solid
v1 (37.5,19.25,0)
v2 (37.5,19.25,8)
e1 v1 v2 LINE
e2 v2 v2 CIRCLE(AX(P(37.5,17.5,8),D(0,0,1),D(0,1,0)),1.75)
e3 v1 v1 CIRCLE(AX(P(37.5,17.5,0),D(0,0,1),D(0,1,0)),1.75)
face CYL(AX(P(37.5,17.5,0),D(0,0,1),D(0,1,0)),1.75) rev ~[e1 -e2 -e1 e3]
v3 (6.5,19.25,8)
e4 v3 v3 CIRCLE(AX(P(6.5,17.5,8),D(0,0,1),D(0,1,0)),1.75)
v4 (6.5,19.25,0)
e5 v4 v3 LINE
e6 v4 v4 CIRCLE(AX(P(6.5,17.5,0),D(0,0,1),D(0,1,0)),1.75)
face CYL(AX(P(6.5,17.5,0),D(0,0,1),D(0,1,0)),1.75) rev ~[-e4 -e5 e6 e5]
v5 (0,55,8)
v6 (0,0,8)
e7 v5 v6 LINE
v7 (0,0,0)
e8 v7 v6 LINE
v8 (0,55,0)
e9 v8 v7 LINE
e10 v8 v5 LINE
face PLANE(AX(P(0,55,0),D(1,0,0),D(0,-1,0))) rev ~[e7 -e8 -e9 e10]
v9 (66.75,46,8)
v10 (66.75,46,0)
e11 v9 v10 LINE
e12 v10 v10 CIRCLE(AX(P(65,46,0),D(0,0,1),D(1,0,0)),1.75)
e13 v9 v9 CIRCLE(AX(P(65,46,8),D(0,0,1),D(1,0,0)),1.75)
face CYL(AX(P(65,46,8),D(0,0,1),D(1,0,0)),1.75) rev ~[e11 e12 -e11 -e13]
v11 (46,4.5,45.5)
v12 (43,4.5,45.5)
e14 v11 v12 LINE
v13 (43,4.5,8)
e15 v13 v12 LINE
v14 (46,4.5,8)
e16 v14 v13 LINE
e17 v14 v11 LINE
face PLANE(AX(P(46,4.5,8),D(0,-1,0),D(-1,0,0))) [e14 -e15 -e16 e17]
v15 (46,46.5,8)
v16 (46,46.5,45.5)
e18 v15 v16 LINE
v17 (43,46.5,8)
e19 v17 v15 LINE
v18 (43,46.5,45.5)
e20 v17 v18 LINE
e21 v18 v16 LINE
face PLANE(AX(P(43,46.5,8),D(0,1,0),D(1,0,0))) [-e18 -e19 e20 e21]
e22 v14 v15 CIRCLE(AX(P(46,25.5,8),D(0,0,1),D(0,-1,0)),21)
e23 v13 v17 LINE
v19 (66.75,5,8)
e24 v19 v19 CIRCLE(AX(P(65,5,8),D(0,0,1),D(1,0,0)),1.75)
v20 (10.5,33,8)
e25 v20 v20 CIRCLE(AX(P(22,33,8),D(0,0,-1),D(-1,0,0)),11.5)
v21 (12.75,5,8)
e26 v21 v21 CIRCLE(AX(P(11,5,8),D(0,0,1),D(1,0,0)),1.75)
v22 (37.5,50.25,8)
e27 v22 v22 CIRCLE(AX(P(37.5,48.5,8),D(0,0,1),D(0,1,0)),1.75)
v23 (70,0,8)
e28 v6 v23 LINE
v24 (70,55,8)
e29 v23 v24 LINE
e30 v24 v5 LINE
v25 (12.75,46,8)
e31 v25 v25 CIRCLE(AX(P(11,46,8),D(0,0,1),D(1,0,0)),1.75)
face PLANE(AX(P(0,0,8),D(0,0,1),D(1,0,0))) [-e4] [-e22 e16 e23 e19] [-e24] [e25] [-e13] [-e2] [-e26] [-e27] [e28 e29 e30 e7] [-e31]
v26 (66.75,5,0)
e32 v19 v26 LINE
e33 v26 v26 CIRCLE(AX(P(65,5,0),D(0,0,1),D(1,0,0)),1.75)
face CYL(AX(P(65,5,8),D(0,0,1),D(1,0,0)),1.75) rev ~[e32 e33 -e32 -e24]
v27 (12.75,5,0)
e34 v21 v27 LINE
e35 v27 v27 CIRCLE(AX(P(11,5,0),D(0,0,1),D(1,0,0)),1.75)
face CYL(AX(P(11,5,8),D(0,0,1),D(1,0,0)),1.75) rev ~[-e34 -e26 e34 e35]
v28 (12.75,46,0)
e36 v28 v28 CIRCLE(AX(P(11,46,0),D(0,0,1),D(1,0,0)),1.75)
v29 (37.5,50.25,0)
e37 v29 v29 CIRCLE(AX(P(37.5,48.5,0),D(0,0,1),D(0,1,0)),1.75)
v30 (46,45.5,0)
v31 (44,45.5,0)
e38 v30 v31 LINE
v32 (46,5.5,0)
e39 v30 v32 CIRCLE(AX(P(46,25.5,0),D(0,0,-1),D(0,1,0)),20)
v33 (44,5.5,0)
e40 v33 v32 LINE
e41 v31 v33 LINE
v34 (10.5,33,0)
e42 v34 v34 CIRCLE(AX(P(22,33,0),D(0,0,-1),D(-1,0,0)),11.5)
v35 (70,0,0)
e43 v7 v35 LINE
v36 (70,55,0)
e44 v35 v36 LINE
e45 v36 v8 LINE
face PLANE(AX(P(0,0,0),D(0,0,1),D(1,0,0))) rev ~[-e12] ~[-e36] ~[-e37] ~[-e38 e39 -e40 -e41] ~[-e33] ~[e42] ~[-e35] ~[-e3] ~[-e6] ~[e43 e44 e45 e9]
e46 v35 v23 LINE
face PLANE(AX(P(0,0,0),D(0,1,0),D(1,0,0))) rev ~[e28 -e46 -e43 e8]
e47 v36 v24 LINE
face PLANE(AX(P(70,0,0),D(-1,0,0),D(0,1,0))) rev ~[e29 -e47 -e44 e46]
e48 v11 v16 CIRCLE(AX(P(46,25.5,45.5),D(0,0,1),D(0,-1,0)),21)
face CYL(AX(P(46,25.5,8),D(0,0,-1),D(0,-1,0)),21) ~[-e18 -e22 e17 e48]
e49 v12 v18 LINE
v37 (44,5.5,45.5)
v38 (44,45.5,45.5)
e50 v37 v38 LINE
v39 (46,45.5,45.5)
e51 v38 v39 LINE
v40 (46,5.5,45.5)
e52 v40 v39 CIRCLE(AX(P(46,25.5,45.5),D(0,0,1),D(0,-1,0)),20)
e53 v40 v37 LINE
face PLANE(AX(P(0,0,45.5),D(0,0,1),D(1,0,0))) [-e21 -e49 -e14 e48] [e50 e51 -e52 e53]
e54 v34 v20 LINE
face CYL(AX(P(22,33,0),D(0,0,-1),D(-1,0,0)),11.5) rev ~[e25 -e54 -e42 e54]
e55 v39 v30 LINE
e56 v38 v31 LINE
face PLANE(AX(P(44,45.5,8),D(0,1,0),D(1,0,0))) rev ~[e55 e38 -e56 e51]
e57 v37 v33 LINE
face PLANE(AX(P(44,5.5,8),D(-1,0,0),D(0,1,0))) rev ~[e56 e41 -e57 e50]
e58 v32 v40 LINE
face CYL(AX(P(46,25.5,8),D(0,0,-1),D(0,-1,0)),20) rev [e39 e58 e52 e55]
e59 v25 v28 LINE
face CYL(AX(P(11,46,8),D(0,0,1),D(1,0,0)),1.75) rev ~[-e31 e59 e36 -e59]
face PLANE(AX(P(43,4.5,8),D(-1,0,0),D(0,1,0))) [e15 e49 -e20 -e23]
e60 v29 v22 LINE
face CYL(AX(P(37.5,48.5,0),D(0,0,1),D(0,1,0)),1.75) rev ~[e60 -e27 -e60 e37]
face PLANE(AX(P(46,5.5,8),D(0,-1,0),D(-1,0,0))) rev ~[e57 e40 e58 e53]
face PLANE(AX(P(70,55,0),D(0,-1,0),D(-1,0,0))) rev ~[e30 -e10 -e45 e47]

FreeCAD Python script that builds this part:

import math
import FreeCAD as App
import Part
import Sketcher

V = App.Vector
Q = App.Units.Quantity

doc = App.newDocument("Part")
body = doc.addObject("PartDesign::Body", "Body")

# Sketch on XY plane
sketch1 = doc.addObject("Sketcher::SketchObject", "Sketch")
body.addObject(sketch1)
sketch1.AttachmentSupport = (doc.XY_Plane, [""])
sketch1.MapMode = "FlatFace"
sketch1.addGeometry(Part.LineSegment(V(0, 55, 0), V(0, 0, 0)), False)
sketch1.addGeometry(Part.LineSegment(V(0, 0, 0), V(70, 0, 0)), False)
sketch1.addGeometry(Part.LineSegment(V(70, 0, 0), V(70, 55, 0)), False)
sketch1.addGeometry(Part.LineSegment(V(70, 55, 0), V(0, 55, 0)), False)
sketch1.addConstraint(Sketcher.Constraint("Coincident", 0, 2, 1, 1))
sketch1.addConstraint(Sketcher.Constraint("Coincident", 1, 2, 2, 1))
sketch1.addConstraint(Sketcher.Constraint("Coincident", 2, 2, 3, 1))
sketch1.addConstraint(Sketcher.Constraint("Coincident", 3, 2, 0, 1))
sketch1.addConstraint(Sketcher.Constraint("Vertical", 0))
sketch1.addConstraint(Sketcher.Constraint("Horizontal", 1))
sketch1.addConstraint(Sketcher.Constraint("Vertical", 2))
sketch1.addConstraint(Sketcher.Constraint("Horizontal", 3))
sketch1.addConstraint(Sketcher.Constraint("Coincident", 0, 2, -1, 1))
sketch1.addConstraint(Sketcher.Constraint("DistanceX", 1, 1, 1, 2, Q("70 mm")))
sketch1.addConstraint(Sketcher.Constraint("DistanceY", 0, 2, 0, 1, Q("55 mm")))
pad1 = doc.addObject("PartDesign::Pad", "Pad")
body.addObject(pad1)
pad1.Profile = sketch1
pad1.Length = 8

# Sketch on XY plane
sketch2 = doc.addObject("Sketcher::SketchObject", "Sketch001")
body.addObject(sketch2)
sketch2.AttachmentSupport = (doc.XY_Plane, [""])
sketch2.MapMode = "FlatFace"
sketch2.AttachmentOffset = App.Placement(V(0, 0, 8), App.Rotation())
sketch2.addGeometry(Part.Circle(V(11, 5, 0), V(0, 0, 1), 1.8), False)
sketch2.addGeometry(Part.Circle(V(65, 5, 0), V(0, 0, 1), 1.8), False)
sketch2.addGeometry(Part.Circle(V(11, 46, 0), V(0, 0, 1), 1.8), False)
sketch2.addGeometry(Part.Circle(V(65, 46, 0), V(0, 0, 1), 1.8), False)
sketch2.addConstraint(Sketcher.Constraint("Equal", 0, 1))
sketch2.addConstraint(Sketcher.Constraint("Equal", 1, 2))
sketch2.addConstraint(Sketcher.Constraint("Equal", 2, 3))
sketch2.addConstraint(Sketcher.Constraint("Horizontal", 0, 3, 1, 3))
sketch2.addConstraint(Sketcher.Constraint("Horizontal", 2, 3, 3, 3))
sketch2.addConstraint(Sketcher.Constraint("Vertical", 0, 3, 2, 3))
sketch2.addConstraint(Sketcher.Constraint("Vertical", 1, 3, 3, 3))
sketch2.addConstraint(Sketcher.Constraint("Diameter", 0, Q("3.5 mm")))
sketch2.addConstraint(Sketcher.Constraint("DistanceX", -1, 1, 0, 3, Q("11 mm")))
sketch2.addConstraint(Sketcher.Constraint("DistanceY", -1, 1, 0, 3, Q("5 mm")))
sketch2.addConstraint(Sketcher.Constraint("DistanceX", -1, 1, 1, 3, Q("65 mm")))
sketch2.addConstraint(Sketcher.Constraint("DistanceY", -1, 1, 2, 3, Q("46 mm")))
pocket1 = doc.addObject("PartDesign::Pocket", "Pocket")
body.addObject(pocket1)
pocket1.Profile = sketch2
pocket1.Length = 40

# Sketch on XY plane
sketch3 = doc.addObject("Sketcher::SketchObject", "Sketch002")
body.addObject(sketch3)
sketch3.AttachmentSupport = (doc.XY_Plane, [""])
sketch3.MapMode = "FlatFace"
sketch3.addGeometry(Part.Circle(V(22, 33, 0), V(0, 0, 1), 12), False)
sketch3.addConstraint(Sketcher.Constraint("Diameter", 0, Q("23 mm")))
sketch3.addConstraint(Sketcher.Constraint("DistanceX", -1, 1, 0, 3, Q("22 mm")))
sketch3.addConstraint(Sketcher.Constraint("DistanceY", -1, 1, 0, 3, Q("33 mm")))
pocket2 = doc.addObject("PartDesign::Pocket", "Pocket001")
body.addObject(pocket2)
pocket2.Profile = sketch3
pocket2.Length = 35
pocket2.Reversed = True

# Sketch on XY plane
sketch4 = doc.addObject("Sketcher::SketchObject", "Sketch003")
body.addObject(sketch4)
sketch4.AttachmentSupport = (doc.XY_Plane, [""])
sketch4.MapMode = "FlatFace"
sketch4.addGeometry(Part.Circle(V(6.5, 17.5, 0), V(0, 0, 1), 1.8), False)
sketch4.addGeometry(Part.Circle(V(37.5, 17.5, 0), V(0, 0, 1), 1.8), False)
sketch4.addGeometry(Part.Circle(V(37.5, 48.5, 0), V(0, 0, 1), 1.8), False)
sketch4.addConstraint(Sketcher.Constraint("Equal", 0, 1))
sketch4.addConstraint(Sketcher.Constraint("Equal", 1, 2))
sketch4.addConstraint(Sketcher.Constraint("Horizontal", 0, 3, 1, 3))
sketch4.addConstraint(Sketcher.Constraint("Vertical", 1, 3, 2, 3))
sketch4.addConstraint(Sketcher.Constraint("Diameter", 0, Q("3.5 mm")))
sketch4.addConstraint(Sketcher.Constraint("DistanceX", 0, 3, 1, 3, Q("31 mm")))
sketch4.addConstraint(Sketcher.Constraint("DistanceY", 1, 3, 2, 3, Q("31 mm")))
sketch4.addConstraint(Sketcher.Constraint("DistanceX", -1, 1, 0, 3, Q("6.5 mm")))
sketch4.addConstraint(Sketcher.Constraint("DistanceY", -1, 1, 0, 3, Q("17.5 mm")))
doc.recompute()
hole = doc.addObject("PartDesign::Hole", "Hole")
body.addObject(hole)
hole.Profile = sketch4
hole.ThreadType = "None"
hole.Diameter = 3.5
hole.DepthType = "ThroughAll"
hole.Reversed = True

# Sketch on XY plane
sketch5 = doc.addObject("Sketcher::SketchObject", "Sketch004")
body.addObject(sketch5)
sketch5.AttachmentSupport = (doc.XY_Plane, [""])
sketch5.MapMode = "FlatFace"
sketch5.addGeometry(Part.LineSegment(V(44, 45.5, 0), V(46, 45.5, 0)), False)
sketch5.addGeometry(Part.ArcOfCircle(Part.Circle(V(46, 25.5, 0), V(0, 0, 1), 20), math.radians(-90), math.radians(90)), False)
sketch5.addGeometry(Part.LineSegment(V(46, 5.5, 0), V(44, 5.5, 0)), False)
sketch5.addGeometry(Part.LineSegment(V(44, 5.5, 0), V(44, 45.5, 0)), False)
sketch5.addConstraint(Sketcher.Constraint("Tangent", 0, 2, 1, 2))
sketch5.addConstraint(Sketcher.Constraint("Tangent", 1, 1, 2, 1))
sketch5.addConstraint(Sketcher.Constraint("Coincident", 2, 2, 3, 1))
sketch5.addConstraint(Sketcher.Constraint("Coincident", 3, 2, 0, 1))
sketch5.addConstraint(Sketcher.Constraint("Horizontal", 0))
sketch5.addConstraint(Sketcher.Constraint("Horizontal", 2))
sketch5.addConstraint(Sketcher.Constraint("Vertical", 3))
sketch5.addConstraint(Sketcher.Constraint("Radius", 1, Q("20 mm")))
sketch5.addConstraint(Sketcher.Constraint("DistanceY", -1, 1, 1, 3, Q("25.5 mm")))
sketch5.addConstraint(Sketcher.Constraint("DistanceX", 0, 1, 0, 2, Q("2 mm")))
sketch5.addConstraint(Sketcher.Constraint("DistanceX", -1, 1, 1, 3, Q("46 mm")))
pocket3 = doc.addObject("PartDesign::Pocket", "Pocket002")
body.addObject(pocket3)
pocket3.Profile = sketch5
pocket3.Length = 35
pocket3.Reversed = True

# Sketch on XY plane
sketch6 = doc.addObject("Sketcher::SketchObject", "Sketch005")
body.addObject(sketch6)
sketch6.AttachmentSupport = (doc.XY_Plane, [""])
sketch6.MapMode = "FlatFace"
sketch6.AttachmentOffset = App.Placement(V(0, 0, 8), App.Rotation())
sketch6.addGeometry(Part.LineSegment(V(43, 4.5, 0), V(46, 4.5, 0)), False)
sketch6.addGeometry(Part.ArcOfCircle(Part.Circle(V(46, 25.5, 0), V(0, 0, 1), 21), math.radians(-90), math.radians(90)), False)
sketch6.addGeometry(Part.LineSegment(V(46, 46.5, 0), V(43, 46.5, 0)), False)
sketch6.addGeometry(Part.LineSegment(V(43, 46.5, 0), V(43, 4.5, 0)), False)
sketch6.addGeometry(Part.ArcOfCircle(Part.Circle(V(46, 25.5, 0), V(0, 0, 1), 20), math.radians(-90), math.radians(90)), False)
sketch6.addGeometry(Part.LineSegment(V(46, 5.5, 0), V(44, 5.5, 0)), False)
sketch6.addGeometry(Part.LineSegment(V(44, 5.5, 0), V(44, 45.5, 0)), False)
sketch6.addGeometry(Part.LineSegment(V(44, 45.5, 0), V(46, 45.5, 0)), False)
sketch6.addConstraint(Sketcher.Constraint("Tangent", 0, 2, 1, 1))
sketch6.addConstraint(Sketcher.Constraint("Tangent", 1, 2, 2, 1))
sketch6.addConstraint(Sketcher.Constraint("Coincident", 2, 2, 3, 1))
sketch6.addConstraint(Sketcher.Constraint("Coincident", 3, 2, 0, 1))
sketch6.addConstraint(Sketcher.Constraint("Tangent", 4, 1, 5, 1))
sketch6.addConstraint(Sketcher.Constraint("Coincident", 5, 2, 6, 1))
sketch6.addConstraint(Sketcher.Constraint("Coincident", 6, 2, 7, 1))
sketch6.addConstraint(Sketcher.Constraint("Tangent", 7, 2, 4, 2))
sketch6.addConstraint(Sketcher.Constraint("Horizontal", 0))
sketch6.addConstraint(Sketcher.Constraint("Horizontal", 2))
sketch6.addConstraint(Sketcher.Constraint("Vertical", 3))
sketch6.addConstraint(Sketcher.Constraint("Horizontal", 5))
sketch6.addConstraint(Sketcher.Constraint("Vertical", 6))
sketch6.addConstraint(Sketcher.Constraint("Horizontal", 7))
sketch6.addConstraint(Sketcher.Constraint("Coincident", 4, 3, 1, 3))
sketch6.addConstraint(Sketcher.Constraint("Radius", 1, Q("21 mm")))
sketch6.addConstraint(Sketcher.Constraint("Radius", 4, Q("20 mm")))
sketch6.addConstraint(Sketcher.Constraint("DistanceX", 0, 1, 0, 2, Q("3 mm")))
sketch6.addConstraint(Sketcher.Constraint("DistanceX", 5, 2, 5, 1, Q("2 mm")))
sketch6.addConstraint(Sketcher.Constraint("DistanceX", -1, 1, 1, 3, Q("46 mm")))
sketch6.addConstraint(Sketcher.Constraint("DistanceY", -1, 1, 1, 3, Q("25.5 mm")))
pad2 = doc.addObject("PartDesign::Pad", "Pad001")
body.addObject(pad2)
pad2.Profile = sketch6
pad2.Length = 37.5

doc.recompute()
